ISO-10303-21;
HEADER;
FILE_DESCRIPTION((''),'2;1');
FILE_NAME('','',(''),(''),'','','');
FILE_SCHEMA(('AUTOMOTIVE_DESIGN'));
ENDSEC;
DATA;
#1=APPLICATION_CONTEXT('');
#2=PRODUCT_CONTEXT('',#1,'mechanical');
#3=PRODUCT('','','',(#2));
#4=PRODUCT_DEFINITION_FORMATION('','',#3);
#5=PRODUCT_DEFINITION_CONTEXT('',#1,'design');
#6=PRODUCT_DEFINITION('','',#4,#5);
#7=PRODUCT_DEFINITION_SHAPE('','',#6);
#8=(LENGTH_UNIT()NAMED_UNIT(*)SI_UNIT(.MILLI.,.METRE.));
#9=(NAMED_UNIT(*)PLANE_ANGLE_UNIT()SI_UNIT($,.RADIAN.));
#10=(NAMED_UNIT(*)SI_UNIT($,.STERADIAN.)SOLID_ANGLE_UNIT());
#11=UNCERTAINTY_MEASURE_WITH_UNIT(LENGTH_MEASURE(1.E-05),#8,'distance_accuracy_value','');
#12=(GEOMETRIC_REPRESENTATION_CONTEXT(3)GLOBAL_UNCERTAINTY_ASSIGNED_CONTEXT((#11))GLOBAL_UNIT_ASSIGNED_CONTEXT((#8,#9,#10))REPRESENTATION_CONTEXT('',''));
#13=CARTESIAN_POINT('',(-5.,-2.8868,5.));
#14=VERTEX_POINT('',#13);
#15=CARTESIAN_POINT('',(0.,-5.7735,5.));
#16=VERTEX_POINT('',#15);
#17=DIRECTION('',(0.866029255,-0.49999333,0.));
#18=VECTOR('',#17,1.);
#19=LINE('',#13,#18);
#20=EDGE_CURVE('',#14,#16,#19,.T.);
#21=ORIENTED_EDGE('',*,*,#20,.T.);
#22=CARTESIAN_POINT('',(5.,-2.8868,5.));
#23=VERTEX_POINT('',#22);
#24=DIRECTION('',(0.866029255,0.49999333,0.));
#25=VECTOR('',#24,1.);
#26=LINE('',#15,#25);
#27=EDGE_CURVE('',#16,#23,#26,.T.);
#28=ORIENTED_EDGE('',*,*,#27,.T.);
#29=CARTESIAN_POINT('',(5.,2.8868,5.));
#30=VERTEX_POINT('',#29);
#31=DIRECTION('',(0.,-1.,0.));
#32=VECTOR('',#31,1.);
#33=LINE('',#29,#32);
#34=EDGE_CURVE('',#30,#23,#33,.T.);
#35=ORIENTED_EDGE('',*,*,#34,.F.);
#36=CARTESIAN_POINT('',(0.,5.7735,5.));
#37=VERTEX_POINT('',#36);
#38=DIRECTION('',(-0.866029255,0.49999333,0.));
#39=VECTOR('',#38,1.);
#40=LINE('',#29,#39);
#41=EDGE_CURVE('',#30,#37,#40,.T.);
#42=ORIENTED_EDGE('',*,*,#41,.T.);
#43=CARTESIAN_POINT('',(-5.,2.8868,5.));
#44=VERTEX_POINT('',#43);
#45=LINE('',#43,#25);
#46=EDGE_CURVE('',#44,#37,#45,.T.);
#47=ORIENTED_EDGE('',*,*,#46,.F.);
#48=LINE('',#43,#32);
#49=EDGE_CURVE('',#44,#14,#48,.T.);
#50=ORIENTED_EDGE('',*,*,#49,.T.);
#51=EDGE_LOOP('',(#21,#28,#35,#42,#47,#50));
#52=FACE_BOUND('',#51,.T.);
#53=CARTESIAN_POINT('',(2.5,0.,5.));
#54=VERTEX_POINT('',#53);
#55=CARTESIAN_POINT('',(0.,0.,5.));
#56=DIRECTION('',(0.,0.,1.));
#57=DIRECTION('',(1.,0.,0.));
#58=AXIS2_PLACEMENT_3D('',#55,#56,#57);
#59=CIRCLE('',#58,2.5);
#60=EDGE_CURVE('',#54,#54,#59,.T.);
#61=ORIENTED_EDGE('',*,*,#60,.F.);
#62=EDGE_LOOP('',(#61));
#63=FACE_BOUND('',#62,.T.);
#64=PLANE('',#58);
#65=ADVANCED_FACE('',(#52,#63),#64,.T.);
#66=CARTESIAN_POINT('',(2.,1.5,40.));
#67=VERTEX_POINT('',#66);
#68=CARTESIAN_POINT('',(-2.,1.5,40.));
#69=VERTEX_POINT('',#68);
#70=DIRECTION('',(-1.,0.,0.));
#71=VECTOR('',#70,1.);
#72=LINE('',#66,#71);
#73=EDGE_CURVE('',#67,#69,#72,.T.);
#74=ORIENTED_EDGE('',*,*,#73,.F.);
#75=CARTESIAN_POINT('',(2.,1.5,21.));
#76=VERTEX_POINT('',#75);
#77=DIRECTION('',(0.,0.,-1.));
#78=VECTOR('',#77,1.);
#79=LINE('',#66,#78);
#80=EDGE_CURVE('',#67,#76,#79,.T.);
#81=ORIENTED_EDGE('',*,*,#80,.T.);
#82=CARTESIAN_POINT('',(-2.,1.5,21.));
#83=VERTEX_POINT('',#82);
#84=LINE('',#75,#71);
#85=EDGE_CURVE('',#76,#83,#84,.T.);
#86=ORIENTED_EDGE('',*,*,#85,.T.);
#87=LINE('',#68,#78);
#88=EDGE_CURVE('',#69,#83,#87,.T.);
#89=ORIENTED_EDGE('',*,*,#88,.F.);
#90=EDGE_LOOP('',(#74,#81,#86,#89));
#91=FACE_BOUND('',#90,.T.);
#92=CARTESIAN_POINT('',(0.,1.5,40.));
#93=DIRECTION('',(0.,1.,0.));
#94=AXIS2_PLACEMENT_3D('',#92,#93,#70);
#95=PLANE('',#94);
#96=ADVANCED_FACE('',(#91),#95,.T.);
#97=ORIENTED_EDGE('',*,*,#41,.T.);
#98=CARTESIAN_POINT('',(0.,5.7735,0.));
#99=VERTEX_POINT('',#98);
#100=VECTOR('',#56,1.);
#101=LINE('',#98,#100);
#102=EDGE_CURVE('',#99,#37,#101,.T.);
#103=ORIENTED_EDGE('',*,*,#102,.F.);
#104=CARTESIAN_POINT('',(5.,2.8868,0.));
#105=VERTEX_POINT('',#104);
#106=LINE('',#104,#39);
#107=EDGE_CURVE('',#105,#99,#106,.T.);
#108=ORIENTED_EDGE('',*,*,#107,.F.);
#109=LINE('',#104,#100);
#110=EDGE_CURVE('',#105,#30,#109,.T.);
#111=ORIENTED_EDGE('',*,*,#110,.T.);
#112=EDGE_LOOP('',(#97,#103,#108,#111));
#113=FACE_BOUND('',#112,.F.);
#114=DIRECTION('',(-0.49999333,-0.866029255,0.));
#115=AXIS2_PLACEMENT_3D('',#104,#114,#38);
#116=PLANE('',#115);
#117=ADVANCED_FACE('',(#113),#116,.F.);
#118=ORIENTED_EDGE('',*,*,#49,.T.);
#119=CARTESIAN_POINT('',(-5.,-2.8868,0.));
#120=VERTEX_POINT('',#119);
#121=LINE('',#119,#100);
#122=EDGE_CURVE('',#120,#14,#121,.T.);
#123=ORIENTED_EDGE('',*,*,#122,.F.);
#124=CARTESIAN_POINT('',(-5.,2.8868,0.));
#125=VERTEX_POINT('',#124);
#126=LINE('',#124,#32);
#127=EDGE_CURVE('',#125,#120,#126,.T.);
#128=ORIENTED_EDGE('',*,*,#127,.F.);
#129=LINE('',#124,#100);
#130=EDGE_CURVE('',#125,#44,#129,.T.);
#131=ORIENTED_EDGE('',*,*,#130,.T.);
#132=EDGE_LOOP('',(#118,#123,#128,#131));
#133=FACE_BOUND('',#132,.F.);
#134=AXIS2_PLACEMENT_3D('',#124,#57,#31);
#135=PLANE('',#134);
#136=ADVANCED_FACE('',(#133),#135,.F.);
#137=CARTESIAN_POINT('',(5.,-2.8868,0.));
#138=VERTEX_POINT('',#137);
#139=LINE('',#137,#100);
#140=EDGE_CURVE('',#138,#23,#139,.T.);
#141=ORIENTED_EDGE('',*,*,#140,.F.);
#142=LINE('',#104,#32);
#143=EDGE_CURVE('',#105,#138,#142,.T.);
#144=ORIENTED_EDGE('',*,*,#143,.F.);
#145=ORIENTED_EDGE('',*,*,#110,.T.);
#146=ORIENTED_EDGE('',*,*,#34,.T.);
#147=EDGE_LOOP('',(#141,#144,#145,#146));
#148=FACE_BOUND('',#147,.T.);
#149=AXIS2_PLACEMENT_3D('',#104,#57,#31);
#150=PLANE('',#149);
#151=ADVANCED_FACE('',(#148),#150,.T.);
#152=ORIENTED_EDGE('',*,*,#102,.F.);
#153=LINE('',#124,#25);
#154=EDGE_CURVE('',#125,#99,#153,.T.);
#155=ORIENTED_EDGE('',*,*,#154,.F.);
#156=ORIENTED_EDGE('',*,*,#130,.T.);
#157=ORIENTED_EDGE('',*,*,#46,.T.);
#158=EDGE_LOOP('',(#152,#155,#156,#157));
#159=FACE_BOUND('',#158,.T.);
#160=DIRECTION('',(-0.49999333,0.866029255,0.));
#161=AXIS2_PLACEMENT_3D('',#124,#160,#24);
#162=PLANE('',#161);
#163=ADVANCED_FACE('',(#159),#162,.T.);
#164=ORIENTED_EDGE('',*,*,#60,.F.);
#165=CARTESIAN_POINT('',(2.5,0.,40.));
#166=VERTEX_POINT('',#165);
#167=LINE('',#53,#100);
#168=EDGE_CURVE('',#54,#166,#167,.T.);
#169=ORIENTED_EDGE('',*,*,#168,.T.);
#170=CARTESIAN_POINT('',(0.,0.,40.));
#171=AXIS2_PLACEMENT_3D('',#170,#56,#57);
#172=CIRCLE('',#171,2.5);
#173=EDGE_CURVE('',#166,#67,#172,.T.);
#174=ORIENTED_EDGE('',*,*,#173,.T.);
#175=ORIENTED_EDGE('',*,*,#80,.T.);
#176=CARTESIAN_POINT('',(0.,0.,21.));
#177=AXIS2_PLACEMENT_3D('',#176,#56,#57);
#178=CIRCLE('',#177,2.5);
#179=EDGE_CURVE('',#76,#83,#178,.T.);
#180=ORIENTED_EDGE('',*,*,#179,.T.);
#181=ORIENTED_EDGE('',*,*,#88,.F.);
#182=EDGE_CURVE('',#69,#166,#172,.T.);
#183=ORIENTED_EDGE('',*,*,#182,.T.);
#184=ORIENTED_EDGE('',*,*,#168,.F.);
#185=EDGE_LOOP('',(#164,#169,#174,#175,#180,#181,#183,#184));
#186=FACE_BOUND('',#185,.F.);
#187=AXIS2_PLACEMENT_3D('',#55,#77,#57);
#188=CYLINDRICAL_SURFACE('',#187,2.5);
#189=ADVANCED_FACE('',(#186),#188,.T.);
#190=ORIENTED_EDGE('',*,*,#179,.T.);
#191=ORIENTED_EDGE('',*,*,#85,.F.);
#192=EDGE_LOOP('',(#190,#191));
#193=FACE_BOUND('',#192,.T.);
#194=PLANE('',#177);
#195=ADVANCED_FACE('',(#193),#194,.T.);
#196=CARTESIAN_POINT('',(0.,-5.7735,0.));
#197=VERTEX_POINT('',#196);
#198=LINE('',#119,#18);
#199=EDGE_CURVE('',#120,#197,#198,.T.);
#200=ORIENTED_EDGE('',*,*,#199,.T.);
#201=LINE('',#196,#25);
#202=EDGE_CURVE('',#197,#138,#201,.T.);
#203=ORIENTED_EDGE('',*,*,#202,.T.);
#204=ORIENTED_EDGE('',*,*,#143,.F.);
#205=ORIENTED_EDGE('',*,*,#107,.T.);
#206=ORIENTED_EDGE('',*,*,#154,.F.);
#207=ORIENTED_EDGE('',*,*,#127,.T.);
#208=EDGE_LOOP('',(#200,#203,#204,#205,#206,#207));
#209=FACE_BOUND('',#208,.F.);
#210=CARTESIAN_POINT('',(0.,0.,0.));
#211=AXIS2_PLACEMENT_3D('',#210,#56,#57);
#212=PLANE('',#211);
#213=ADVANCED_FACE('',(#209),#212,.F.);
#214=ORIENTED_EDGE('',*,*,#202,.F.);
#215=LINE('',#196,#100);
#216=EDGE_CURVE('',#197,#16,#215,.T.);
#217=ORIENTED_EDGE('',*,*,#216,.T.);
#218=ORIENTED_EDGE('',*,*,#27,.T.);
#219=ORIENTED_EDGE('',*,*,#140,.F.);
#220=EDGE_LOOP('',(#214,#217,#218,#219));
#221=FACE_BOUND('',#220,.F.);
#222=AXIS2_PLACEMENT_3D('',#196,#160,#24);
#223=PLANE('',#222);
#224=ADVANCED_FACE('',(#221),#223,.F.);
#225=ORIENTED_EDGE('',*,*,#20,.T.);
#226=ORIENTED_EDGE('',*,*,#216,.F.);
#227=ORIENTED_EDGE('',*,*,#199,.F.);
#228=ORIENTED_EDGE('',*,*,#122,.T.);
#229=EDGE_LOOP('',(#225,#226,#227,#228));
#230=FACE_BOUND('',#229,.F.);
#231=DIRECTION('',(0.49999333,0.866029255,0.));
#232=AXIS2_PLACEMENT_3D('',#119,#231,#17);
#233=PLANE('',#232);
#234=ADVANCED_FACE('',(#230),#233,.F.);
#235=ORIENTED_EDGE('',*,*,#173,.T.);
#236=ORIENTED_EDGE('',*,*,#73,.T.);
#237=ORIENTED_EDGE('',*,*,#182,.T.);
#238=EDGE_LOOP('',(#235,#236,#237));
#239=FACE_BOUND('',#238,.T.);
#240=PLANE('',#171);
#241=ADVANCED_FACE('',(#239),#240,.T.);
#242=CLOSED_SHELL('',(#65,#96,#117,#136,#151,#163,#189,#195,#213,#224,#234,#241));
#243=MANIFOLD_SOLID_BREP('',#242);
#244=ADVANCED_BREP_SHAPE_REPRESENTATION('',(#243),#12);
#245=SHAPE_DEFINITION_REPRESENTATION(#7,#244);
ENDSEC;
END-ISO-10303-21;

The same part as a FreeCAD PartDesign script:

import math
import FreeCAD as App
import Part
import Sketcher
from FreeCAD import Vector
Q = App.Units.Quantity

doc = App.newDocument("Part")
params = doc.addObject("Spreadsheet::Sheet", "Params")
for row, (alias, value) in enumerate([
    ("pad1_length", "5 mm"),
    ("sketch2_diameter", "5 mm"),
    ("pad2_length", "35 mm"),
    ("sketch3_radius", "2.5 mm"),
    ("pocket1_length", "19 mm"),
], start=1):
    params.set(f"A{row}", alias)
    params.set(f"B{row}", "=" + value)
    params.setAlias(f"B{row}", alias)

body = doc.addObject("PartDesign::Body", "Body")

# Sketch on XY plane
sketch1 = body.newObject("Sketcher::SketchObject", "Sketch")
sketch1.AttachmentSupport = (doc.getObject("XY_Plane"), [""])
sketch1.MapMode = "FlatFace"
sketch1.addGeometry([
    Part.LineSegment(Vector(5, -2.8868, 0), Vector(5, 2.8868, 0)),  # 0
    Part.LineSegment(Vector(5, 2.8868, 0), Vector(0, 5.7735, 0)),  # 1
    Part.LineSegment(Vector(0, 5.7735, 0), Vector(-5, 2.8868, 0)),  # 2
    Part.LineSegment(Vector(-5, 2.8868, 0), Vector(-5, -2.8868, 0)),  # 3
    Part.LineSegment(Vector(-5, -2.8868, 0), Vector(0, -5.7735, 0)),  # 4
    Part.LineSegment(Vector(0, -5.7735, 0), Vector(5, -2.8868, 0)),  # 5
], False)
sketch1.addConstraint([
    Sketcher.Constraint("Coincident", 0, 2, 1, 1),
    Sketcher.Constraint("Coincident", 1, 2, 2, 1),
    Sketcher.Constraint("Coincident", 2, 2, 3, 1),
    Sketcher.Constraint("Coincident", 3, 2, 4, 1),
    Sketcher.Constraint("Coincident", 4, 2, 5, 1),
    Sketcher.Constraint("Coincident", 5, 2, 0, 1),
    Sketcher.Constraint("Vertical", 0),
    Sketcher.Constraint("Vertical", 3),
    Sketcher.Constraint("Symmetric", 0, 2, 3, 2, -1, 1),
    Sketcher.Constraint("Symmetric", 1, 2, 4, 2, -1, 1),
    Sketcher.Constraint("PointOnObject", 1, 2, -2),
    Sketcher.Constraint("Parallel", 2, 5),
    Sketcher.Constraint("Horizontal", 0, 2, 2, 2),
    Sketcher.Constraint("DistanceX", -1, 1, 0, 2, 5.0),
    Sketcher.Constraint("Angle", 1, Q("150.0004 deg")),
    Sketcher.Constraint("DistanceY", 0, 1, 0, 2, 5.7736),
])
pad1 = body.newObject("PartDesign::Pad", "Pad")
pad1.Profile = sketch1
pad1.setExpression("Length", "Params.pad1_length")

# Sketch on XY plane
sketch2 = body.newObject("Sketcher::SketchObject", "Sketch001")
sketch2.AttachmentSupport = (doc.getObject("XY_Plane"), [""])
sketch2.MapMode = "FlatFace"
sketch2.AttachmentOffset = App.Placement(Vector(0, 0, 5), App.Rotation())
sketch2.addGeometry(Part.Circle(Vector(0, 0, 0), Vector(0, 0, 1), 2.5), False)
sketch2.addConstraint([
    Sketcher.Constraint("Coincident", 0, 3, -1, 1),
    Sketcher.Constraint("Diameter", 0, 5.0),
])
sketch2.setExpression("Constraints[1]", "Params.sketch2_diameter")
pad2 = body.newObject("PartDesign::Pad", "Pad001")
pad2.Profile = sketch2
pad2.setExpression("Length", "Params.pad2_length")

# Sketch on XY plane
sketch3 = body.newObject("Sketcher::SketchObject", "Sketch002")
sketch3.AttachmentSupport = (doc.getObject("XY_Plane"), [""])
sketch3.MapMode = "FlatFace"
sketch3.AttachmentOffset = App.Placement(Vector(0, 0, 40), App.Rotation())
sketch3.addGeometry([
    Part.LineSegment(Vector(-2, 1.5, 0), Vector(2, 1.5, 0)),
    Part.ArcOfCircle(Part.Circle(Vector(0, 0, 0), Vector(0, 0, 1), 2.5), math.radians(36.869898), math.radians(143.130102)),
], False)
sketch3.addConstraint([
    Sketcher.Constraint("Coincident", 0, 1, 1, 2),
    Sketcher.Constraint("Coincident", 1, 1, 0, 2),
    Sketcher.Constraint("Horizontal", 0),
    Sketcher.Constraint("Coincident", 1, 3, -1, 1),
    Sketcher.Constraint("DistanceY", -1, 1, 0, 1, 1.5),
    Sketcher.Constraint("Radius", 1, 2.5),
])
sketch3.setExpression("Constraints[5]", "Params.sketch3_radius")
pocket1 = body.newObject("PartDesign::Pocket", "Pocket")
pocket1.Profile = sketch3
pocket1.setExpression("Length", "Params.pocket1_length")

doc.recompute()
